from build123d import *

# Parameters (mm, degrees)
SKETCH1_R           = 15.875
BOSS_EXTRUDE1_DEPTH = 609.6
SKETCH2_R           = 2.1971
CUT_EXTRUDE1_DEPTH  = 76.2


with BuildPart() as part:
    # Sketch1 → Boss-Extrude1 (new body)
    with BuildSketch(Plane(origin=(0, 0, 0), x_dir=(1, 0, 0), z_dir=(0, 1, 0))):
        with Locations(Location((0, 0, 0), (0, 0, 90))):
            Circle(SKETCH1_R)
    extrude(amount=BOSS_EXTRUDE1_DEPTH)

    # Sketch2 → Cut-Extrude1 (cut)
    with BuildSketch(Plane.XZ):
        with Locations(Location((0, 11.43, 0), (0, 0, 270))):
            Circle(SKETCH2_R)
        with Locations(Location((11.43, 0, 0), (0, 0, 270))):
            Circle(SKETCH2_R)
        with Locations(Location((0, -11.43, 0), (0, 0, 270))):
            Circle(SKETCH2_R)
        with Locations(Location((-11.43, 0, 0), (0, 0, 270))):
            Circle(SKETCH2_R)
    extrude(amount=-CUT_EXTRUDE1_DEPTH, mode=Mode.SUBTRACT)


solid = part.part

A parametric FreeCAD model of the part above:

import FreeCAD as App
import Part
import Sketcher

V = App.Vector
Q = App.Units.Quantity

doc = App.newDocument("Part")
body = doc.addObject("PartDesign::Body", "Body")

# Sketch on XZ plane
sketch1 = body.newObject("Sketcher::SketchObject", "Sketch")
sketch1.AttachmentSupport = (doc.getObject("XZ_Plane"), [""])
sketch1.MapMode = "FlatFace"
sketch1.addGeometry(Part.Circle(V(0, 0, 0), V(0, 0, 1), 16), False)
sketch1.addConstraint([
    Sketcher.Constraint("Coincident", 0, 3, -1, 1),
    Sketcher.Constraint("Diameter", 0, Q("1.25 in")),
])
pad1 = body.newObject("PartDesign::Pad", "Pad")
pad1.Profile = sketch1
pad1.Length = Q("24 in")
pad1.Reversed = True

# Sketch on XZ plane
sketch2 = body.newObject("Sketcher::SketchObject", "Sketch001")
sketch2.AttachmentSupport = (doc.getObject("XZ_Plane"), [""])
sketch2.MapMode = "FlatFace"
sketch2.addGeometry([
    Part.Circle(V(0, 11.4, 0), V(0, 0, 1), 2.2),
    Part.Circle(V(11.4, 0, 0), V(0, 0, 1), 2.2),
    Part.Circle(V(0, -11.4, 0), V(0, 0, 1), 2.2),
    Part.Circle(V(-11.4, 0, 0), V(0, 0, 1), 2.2),
], False)
sketch2.addConstraint([
    Sketcher.Constraint("Equal", 0, 1),
    Sketcher.Constraint("Equal", 1, 2),
    Sketcher.Constraint("Equal", 2, 3),
    Sketcher.Constraint("Symmetric", 0, 3, 2, 3, -1, 1),
    Sketcher.Constraint("Symmetric", 1, 3, 3, 3, -1, 1),
    Sketcher.Constraint("PointOnObject", 0, 3, -2),
    Sketcher.Constraint("PointOnObject", 1, 3, -1),
    Sketcher.Constraint("Diameter", 0, Q("0.173 in")),
    Sketcher.Constraint("DistanceY", 2, 3, 0, 3, Q("0.9 in")),
    Sketcher.Constraint("DistanceX", 3, 3, 1, 3, Q("0.9 in")),
])
pocket1 = body.newObject("PartDesign::Pocket", "Pocket")
pocket1.Profile = sketch2
pocket1.Length = Q("3 in")

doc.recompute()
